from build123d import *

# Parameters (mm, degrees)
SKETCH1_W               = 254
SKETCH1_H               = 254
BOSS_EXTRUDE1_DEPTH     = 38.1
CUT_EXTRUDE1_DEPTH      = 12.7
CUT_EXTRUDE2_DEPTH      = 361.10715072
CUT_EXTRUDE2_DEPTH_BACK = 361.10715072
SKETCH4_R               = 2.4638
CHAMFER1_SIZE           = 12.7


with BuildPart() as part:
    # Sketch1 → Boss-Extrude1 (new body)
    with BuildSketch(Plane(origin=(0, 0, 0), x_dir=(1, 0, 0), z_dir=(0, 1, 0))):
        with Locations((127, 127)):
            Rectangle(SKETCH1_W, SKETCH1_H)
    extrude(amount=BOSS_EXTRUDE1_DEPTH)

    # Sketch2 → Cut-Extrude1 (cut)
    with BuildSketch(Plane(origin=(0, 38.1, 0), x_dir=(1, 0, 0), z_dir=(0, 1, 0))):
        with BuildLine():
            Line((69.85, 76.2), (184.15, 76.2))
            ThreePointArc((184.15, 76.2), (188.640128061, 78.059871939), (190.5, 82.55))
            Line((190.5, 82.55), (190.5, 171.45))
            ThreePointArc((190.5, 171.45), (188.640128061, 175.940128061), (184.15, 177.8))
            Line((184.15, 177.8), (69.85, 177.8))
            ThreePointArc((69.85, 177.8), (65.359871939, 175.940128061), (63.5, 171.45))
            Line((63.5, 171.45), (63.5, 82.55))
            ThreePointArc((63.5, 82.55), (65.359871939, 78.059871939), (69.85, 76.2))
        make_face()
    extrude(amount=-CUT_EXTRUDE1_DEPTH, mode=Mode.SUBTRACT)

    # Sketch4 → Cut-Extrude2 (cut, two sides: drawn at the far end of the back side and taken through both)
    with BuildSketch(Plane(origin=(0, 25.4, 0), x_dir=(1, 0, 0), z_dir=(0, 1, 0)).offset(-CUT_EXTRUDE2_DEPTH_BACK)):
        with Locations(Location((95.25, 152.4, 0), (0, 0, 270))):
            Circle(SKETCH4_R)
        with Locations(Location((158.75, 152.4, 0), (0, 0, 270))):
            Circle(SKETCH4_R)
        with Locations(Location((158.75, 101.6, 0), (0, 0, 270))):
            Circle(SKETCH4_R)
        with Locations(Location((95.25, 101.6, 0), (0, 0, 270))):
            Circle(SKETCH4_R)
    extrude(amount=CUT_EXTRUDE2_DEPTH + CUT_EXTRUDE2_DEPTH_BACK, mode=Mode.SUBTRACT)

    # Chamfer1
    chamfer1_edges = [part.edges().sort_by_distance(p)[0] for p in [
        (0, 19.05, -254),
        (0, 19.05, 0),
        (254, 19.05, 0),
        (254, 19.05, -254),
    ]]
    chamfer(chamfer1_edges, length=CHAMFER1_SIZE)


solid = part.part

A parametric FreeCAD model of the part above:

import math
import FreeCAD as App
import Part
import Sketcher
Q = App.Units.Quantity


def edges_at(feature, points):
    """Names of the edges that pass closest to the given points."""
    edges = feature.Shape.Edges
    near = lambda p: min(range(len(edges)), key=lambda i: edges[i].distToShape(Part.Vertex(*p))[0])
    return sorted({f"Edge{near(p) + 1}" for p in points})

doc = App.newDocument("Part")
body = doc.addObject("PartDesign::Body", "Body")

# Sketch on XZ plane
sketch1 = body.newObject("Sketcher::SketchObject", "Sketch")
sketch1.AttachmentSupport = (doc.getObject("XZ_Plane"), [""])
sketch1.MapMode = "FlatFace"
sketch1.addGeometry([
    Part.LineSegment(App.Vector(0, -254, 0), App.Vector(0, 0, 0)),
    Part.LineSegment(App.Vector(0, 0, 0), App.Vector(254, 0, 0)),
    Part.LineSegment(App.Vector(254, 0, 0), App.Vector(254, -254, 0)),
    Part.LineSegment(App.Vector(254, -254, 0), App.Vector(0, -254, 0)),
], False)
sketch1.addConstraint([
    Sketcher.Constraint("Coincident", 0, 2, 1, 1),
    Sketcher.Constraint("Coincident", 1, 2, 2, 1),
    Sketcher.Constraint("Coincident", 2, 2, 3, 1),
    Sketcher.Constraint("Coincident", 3, 2, 0, 1),
    Sketcher.Constraint("Vertical", 0),
    Sketcher.Constraint("Horizontal", 1),
    Sketcher.Constraint("Vertical", 2),
    Sketcher.Constraint("Horizontal", 3),
    Sketcher.Constraint("Coincident", 0, 2, -1, 1),
    Sketcher.Constraint("Equal", 3, 0),
    Sketcher.Constraint("DistanceX", 1, 1, 1, 2, Q("10 in")),
])
pad1 = body.newObject("PartDesign::Pad", "Pad")
pad1.Profile = sketch1
pad1.Length = Q("1.5 in")
pad1.Reversed = True

# Sketch on XZ plane
sketch2 = body.newObject("Sketcher::SketchObject", "Sketch001")
sketch2.AttachmentSupport = (doc.getObject("XZ_Plane"), [""])
sketch2.MapMode = "FlatFace"
sketch2.AttachmentOffset = App.Placement(App.Vector(0, 0, -1.5 * 25.4), App.Rotation())
sketch2.addGeometry([
    Part.LineSegment(App.Vector(69.85, -76.2, 0), App.Vector(184.15, -76.2, 0)),  # 0
    Part.ArcOfCircle(Part.Circle(App.Vector(184.15, -82.55, 0), App.Vector(0, 0, 1), 6.35), math.radians(0), math.radians(90)),  # 1
    Part.LineSegment(App.Vector(190.5, -82.55, 0), App.Vector(190.5, -171.45, 0)),  # 2
    Part.ArcOfCircle(Part.Circle(App.Vector(184.15, -171.45, 0), App.Vector(0, 0, 1), 6.35), math.radians(-90), math.radians(0)),  # 3
    Part.LineSegment(App.Vector(184.15, -177.8, 0), App.Vector(69.85, -177.8, 0)),  # 4
    Part.ArcOfCircle(Part.Circle(App.Vector(69.85, -171.45, 0), App.Vector(0, 0, 1), 6.35), math.radians(180), math.radians(270)),  # 5
    Part.LineSegment(App.Vector(63.5, -171.45, 0), App.Vector(63.5, -82.55, 0)),  # 6
    Part.ArcOfCircle(Part.Circle(App.Vector(69.85, -82.55, 0), App.Vector(0, 0, 1), 6.35), math.radians(90), math.radians(180)),  # 7
], False)
sketch2.addConstraint([
    Sketcher.Constraint("Tangent", 0, 2, 1, 2),
    Sketcher.Constraint("Tangent", 1, 1, 2, 1),
    Sketcher.Constraint("Tangent", 2, 2, 3, 2),
    Sketcher.Constraint("Tangent", 3, 1, 4, 1),
    Sketcher.Constraint("Tangent", 4, 2, 5, 2),
    Sketcher.Constraint("Tangent", 5, 1, 6, 1),
    Sketcher.Constraint("Tangent", 6, 2, 7, 2),
    Sketcher.Constraint("Tangent", 7, 1, 0, 1),
    Sketcher.Constraint("Horizontal", 0),
    Sketcher.Constraint("Vertical", 2),
    Sketcher.Constraint("Horizontal", 4),
    Sketcher.Constraint("Vertical", 6),
    Sketcher.Constraint("Equal", 1, 3),
    Sketcher.Constraint("Equal", 3, 5),
    Sketcher.Constraint("Equal", 5, 7),
    Sketcher.Constraint("Radius", 1, Q("0.25 in")),
    Sketcher.Constraint("DistanceX", 0, 1, 0, 2, Q("4.5 in")),
    Sketcher.Constraint("DistanceY", 2, 2, 2, 1, Q("3.5 in")),
    Sketcher.Constraint("DistanceY", 0, 2, -1, 1, Q("3 in")),
    Sketcher.Constraint("DistanceX", -1, 1, 1, 1, Q("7.5 in")),
])
pocket1 = body.newObject("PartDesign::Pocket", "Pocket")
pocket1.Profile = sketch2
pocket1.Length = Q("0.5 in")
pocket1.Reversed = True

# Sketch on XZ plane
sketch3 = body.newObject("Sketcher::SketchObject", "Sketch002")
sketch3.AttachmentSupport = (doc.getObject("XZ_Plane"), [""])
sketch3.MapMode = "FlatFace"
sketch3.AttachmentOffset = App.Placement(App.Vector(0, 0, -1 * 25.4), App.Rotation())
sketch3.addGeometry([
    Part.Circle(App.Vector(95.25, -152.4, 0), App.Vector(0, 0, 1), 2.4638),
    Part.Circle(App.Vector(158.75, -152.4, 0), App.Vector(0, 0, 1), 2.4638),
    Part.Circle(App.Vector(158.75, -101.6, 0), App.Vector(0, 0, 1), 2.4638),
    Part.Circle(App.Vector(95.25, -101.6, 0), App.Vector(0, 0, 1), 2.4638),
], False)
sketch3.addConstraint([
    Sketcher.Constraint("Equal", 0, 1),
    Sketcher.Constraint("Equal", 1, 2),
    Sketcher.Constraint("Equal", 2, 3),
    Sketcher.Constraint("Horizontal", 0, 3, 1, 3),
    Sketcher.Constraint("Horizontal", 2, 3, 3, 3),
    Sketcher.Constraint("Vertical", 1, 3, 2, 3),
    Sketcher.Constraint("Vertical", 0, 3, 3, 3),
    Sketcher.Constraint("Diameter", 0, Q("0.194 in")),
    Sketcher.Constraint("DistanceY", 0, 3, -1, 1, Q("6 in")),
    Sketcher.Constraint("DistanceY", 2, 3, -1, 1, Q("4 in")),
    Sketcher.Constraint("DistanceX", 0, 3, 1, 3, Q("2.5 in")),
    Sketcher.Constraint("DistanceX", -1, 1, 0, 3, Q("3.75 in")),
])
pocket2 = body.newObject("PartDesign::Pocket", "Pocket001")
pocket2.Profile = sketch3
pocket2.Type = "ThroughAll"
pocket2.Midplane = True
doc.recompute()

chamfer = body.newObject("PartDesign::Chamfer", "Chamfer")
chamfer.Base = (pocket2, edges_at(pocket2, [
    (0, 19.05, -254),
    (0, 19.05, 0),
    (254, 19.05, 0),
    (254, 19.05, -254),
]))
chamfer.Size = Q("0.5 in")

doc.recompute()
